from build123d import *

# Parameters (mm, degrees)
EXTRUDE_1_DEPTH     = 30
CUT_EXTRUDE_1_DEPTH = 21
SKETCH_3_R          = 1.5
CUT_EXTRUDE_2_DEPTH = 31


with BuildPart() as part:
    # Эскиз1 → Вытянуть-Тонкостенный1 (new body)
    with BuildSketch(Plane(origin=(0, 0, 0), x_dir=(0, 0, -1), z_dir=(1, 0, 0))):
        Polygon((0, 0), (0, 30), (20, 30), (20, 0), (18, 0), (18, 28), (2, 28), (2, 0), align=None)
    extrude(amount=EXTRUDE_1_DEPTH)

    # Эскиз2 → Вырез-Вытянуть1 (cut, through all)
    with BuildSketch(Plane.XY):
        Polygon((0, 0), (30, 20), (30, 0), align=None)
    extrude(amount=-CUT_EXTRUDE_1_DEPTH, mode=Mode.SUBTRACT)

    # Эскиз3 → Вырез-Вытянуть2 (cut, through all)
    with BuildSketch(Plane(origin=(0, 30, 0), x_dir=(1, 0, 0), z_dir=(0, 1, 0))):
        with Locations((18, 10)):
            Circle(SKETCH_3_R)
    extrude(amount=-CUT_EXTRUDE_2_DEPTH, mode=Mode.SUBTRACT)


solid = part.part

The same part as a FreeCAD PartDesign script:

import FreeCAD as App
import Part
import Sketcher

V = App.Vector


def add_polygon(sketch, points):
    """Adds a closed chain of lines whose ends are joined by coincident constraints."""
    first, n = sketch.GeometryCount, len(points)
    for a, b in zip(points, points[1:] + points[:1]):
        sketch.addGeometry(Part.LineSegment(App.Vector(*a, 0), App.Vector(*b, 0)), False)
    for i in range(n):
        sketch.addConstraint(Sketcher.Constraint("Coincident", first + i, 2, first + (i + 1) % n, 1))

doc = App.newDocument("Part")
body = doc.addObject("PartDesign::Body", "Body")

# Sketch on YZ plane
sketch1 = body.newObject("Sketcher::SketchObject", "Sketch")
sketch1.AttachmentSupport = (doc.getObject("YZ_Plane"), [""])
sketch1.MapMode = "FlatFace"
add_polygon(sketch1, [(30, 0), (0, 0), (0, -2), (28, -2), (28, -18), (0, -18), (0, -20), (30, -20)])  # lines 0-7
sketch1.addConstraint([
    Sketcher.Constraint("Horizontal", 0),
    Sketcher.Constraint("Vertical", 1),
    Sketcher.Constraint("Horizontal", 2),
    Sketcher.Constraint("Vertical", 3),
    Sketcher.Constraint("Horizontal", 4),
    Sketcher.Constraint("Vertical", 5),
    Sketcher.Constraint("Horizontal", 6),
    Sketcher.Constraint("Vertical", 7),
    Sketcher.Constraint("Coincident", 0, 2, -1, 1),
    Sketcher.Constraint("PointOnObject", 4, 2, -2),
    Sketcher.Constraint("Equal", 1, 5),
    Sketcher.Constraint("DistanceX", 0, 2, 0, 1, 30.0),
    Sketcher.Constraint("DistanceX", 2, 1, 2, 2, 28.0),
    Sketcher.Constraint("DistanceY", 1, 2, 1, 1, 2.0),
    Sketcher.Constraint("DistanceY", 3, 2, 3, 1, 16.0),
])
pad1 = body.newObject("PartDesign::Pad", "Pad")
pad1.Profile = sketch1
pad1.Length = 30

# Sketch on XY plane
sketch2 = body.newObject("Sketcher::SketchObject", "Sketch001")
sketch2.AttachmentSupport = (doc.getObject("XY_Plane"), [""])
sketch2.MapMode = "FlatFace"
add_polygon(sketch2, [(30, 20), (0, 0), (30, 0)])  # lines 0-2
sketch2.addConstraint([
    Sketcher.Constraint("Horizontal", 1),
    Sketcher.Constraint("Vertical", 2),
    Sketcher.Constraint("Coincident", 0, 2, -1, 1),
    Sketcher.Constraint("DistanceX", 1, 1, 1, 2, 30.0),
    Sketcher.Constraint("DistanceY", 2, 1, 2, 2, 20.0),
])
pocket1 = body.newObject("PartDesign::Pocket", "Pocket")
pocket1.Profile = sketch2
pocket1.Type = "ThroughAll"

# Sketch on XZ plane
sketch3 = body.newObject("Sketcher::SketchObject", "Sketch002")
sketch3.AttachmentSupport = (doc.getObject("XZ_Plane"), [""])
sketch3.MapMode = "FlatFace"
sketch3.AttachmentOffset = App.Placement(V(0, 0, -30), App.Rotation())
sketch3.addGeometry(Part.Circle(V(18, -10, 0), V(0, 0, 1), 1.5), False)
sketch3.addConstraint([
    Sketcher.Constraint("Diameter", 0, 3.0),
    Sketcher.Constraint("DistanceX", -1, 1, 0, 3, 18.0),
    Sketcher.Constraint("DistanceY", 0, 3, -1, 1, 10.0),
])
pocket2 = body.newObject("PartDesign::Pocket", "Pocket001")
pocket2.Profile = sketch3
pocket2.Type = "ThroughAll"
pocket2.Reversed = True

doc.recompute()
